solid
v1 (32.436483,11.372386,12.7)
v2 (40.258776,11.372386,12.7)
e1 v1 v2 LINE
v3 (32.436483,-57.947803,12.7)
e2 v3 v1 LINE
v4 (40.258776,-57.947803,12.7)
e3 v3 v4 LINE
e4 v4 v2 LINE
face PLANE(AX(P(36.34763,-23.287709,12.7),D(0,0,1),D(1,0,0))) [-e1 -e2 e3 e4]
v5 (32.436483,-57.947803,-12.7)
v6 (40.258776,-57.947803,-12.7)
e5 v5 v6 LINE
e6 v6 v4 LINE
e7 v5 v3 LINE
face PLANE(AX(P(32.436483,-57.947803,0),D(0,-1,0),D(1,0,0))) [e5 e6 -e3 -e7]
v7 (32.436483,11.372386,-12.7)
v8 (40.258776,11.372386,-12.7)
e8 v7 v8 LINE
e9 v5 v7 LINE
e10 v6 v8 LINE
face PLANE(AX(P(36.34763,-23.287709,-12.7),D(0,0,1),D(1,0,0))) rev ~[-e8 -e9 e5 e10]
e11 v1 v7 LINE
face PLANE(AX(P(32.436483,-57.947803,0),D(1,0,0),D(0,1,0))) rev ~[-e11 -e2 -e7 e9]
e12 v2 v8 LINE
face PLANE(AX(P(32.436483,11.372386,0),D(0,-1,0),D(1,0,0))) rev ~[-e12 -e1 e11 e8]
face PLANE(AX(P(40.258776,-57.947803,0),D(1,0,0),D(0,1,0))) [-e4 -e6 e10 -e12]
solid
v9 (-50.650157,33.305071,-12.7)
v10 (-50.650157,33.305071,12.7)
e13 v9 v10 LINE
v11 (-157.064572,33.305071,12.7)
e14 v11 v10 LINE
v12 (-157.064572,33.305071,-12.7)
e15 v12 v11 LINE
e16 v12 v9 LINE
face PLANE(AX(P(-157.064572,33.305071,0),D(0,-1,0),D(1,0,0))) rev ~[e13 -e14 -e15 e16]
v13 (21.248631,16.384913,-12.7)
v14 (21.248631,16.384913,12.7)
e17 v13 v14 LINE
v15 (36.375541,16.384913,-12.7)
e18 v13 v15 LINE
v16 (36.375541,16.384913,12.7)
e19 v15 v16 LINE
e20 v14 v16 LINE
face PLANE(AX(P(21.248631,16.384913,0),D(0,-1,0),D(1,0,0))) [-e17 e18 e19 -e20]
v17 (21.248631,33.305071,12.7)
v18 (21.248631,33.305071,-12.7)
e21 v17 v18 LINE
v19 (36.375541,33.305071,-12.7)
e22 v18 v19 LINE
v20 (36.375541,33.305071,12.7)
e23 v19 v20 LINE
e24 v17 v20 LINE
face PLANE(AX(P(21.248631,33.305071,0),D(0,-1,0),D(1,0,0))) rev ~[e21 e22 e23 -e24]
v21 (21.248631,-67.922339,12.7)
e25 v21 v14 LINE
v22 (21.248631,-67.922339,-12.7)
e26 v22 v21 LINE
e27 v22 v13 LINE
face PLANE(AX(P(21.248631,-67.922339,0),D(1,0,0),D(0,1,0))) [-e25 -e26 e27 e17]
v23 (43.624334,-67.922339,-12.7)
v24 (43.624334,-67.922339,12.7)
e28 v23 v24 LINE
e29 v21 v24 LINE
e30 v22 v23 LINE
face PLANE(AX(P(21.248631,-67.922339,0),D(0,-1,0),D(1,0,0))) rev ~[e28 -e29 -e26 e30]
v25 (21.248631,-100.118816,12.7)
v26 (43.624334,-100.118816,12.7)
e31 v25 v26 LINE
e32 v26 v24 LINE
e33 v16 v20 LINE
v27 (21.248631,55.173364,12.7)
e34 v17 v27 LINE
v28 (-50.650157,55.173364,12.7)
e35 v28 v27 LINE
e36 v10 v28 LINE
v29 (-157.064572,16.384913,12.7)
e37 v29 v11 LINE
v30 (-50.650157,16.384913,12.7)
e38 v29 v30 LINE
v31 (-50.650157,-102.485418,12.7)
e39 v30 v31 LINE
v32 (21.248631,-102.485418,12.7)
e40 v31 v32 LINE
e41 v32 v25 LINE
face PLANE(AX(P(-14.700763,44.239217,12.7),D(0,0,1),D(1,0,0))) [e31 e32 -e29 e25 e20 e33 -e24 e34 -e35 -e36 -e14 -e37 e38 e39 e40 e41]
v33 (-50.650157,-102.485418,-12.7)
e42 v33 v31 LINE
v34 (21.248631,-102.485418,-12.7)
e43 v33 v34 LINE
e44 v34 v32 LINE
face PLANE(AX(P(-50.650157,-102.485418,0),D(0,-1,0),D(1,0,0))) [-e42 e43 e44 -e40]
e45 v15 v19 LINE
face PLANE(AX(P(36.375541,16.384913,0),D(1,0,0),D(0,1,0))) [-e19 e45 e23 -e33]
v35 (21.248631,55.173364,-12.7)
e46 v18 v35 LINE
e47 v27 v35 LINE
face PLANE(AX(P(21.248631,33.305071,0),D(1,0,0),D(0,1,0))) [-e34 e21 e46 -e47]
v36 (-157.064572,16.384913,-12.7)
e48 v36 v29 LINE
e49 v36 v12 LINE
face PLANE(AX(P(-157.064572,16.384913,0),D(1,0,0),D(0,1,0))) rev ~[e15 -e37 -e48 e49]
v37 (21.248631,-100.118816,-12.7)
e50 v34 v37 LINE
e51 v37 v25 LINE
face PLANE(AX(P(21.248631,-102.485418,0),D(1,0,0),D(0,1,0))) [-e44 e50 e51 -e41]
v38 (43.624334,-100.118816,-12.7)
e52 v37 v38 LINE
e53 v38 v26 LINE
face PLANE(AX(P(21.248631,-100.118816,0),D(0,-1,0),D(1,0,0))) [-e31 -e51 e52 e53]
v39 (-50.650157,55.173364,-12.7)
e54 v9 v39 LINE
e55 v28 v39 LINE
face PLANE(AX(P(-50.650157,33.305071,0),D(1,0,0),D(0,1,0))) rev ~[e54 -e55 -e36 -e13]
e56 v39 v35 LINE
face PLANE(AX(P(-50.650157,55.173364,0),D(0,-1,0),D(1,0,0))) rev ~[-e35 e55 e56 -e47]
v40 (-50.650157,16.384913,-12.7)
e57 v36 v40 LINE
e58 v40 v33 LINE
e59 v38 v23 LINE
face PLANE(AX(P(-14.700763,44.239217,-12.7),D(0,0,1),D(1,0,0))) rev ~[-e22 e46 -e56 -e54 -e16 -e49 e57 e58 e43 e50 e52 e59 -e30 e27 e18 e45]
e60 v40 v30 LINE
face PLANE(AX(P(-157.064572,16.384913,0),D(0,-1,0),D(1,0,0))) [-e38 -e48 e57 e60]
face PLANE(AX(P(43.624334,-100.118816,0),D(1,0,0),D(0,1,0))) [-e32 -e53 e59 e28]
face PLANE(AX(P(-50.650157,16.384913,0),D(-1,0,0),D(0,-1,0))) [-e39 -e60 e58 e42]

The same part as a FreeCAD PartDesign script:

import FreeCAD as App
import Part
import Sketcher
from FreeCAD import Vector
Q = App.Units.Quantity


def add_polygon(sketch, points):
    """Adds a closed chain of lines whose ends are joined by coincident constraints."""
    first, n = sketch.GeometryCount, len(points)
    for a, b in zip(points, points[1:] + points[:1]):
        sketch.addGeometry(Part.LineSegment(App.Vector(*a, 0), App.Vector(*b, 0)), False)
    for i in range(n):
        sketch.addConstraint(Sketcher.Constraint("Coincident", first + i, 2, first + (i + 1) % n, 1))

doc = App.newDocument("Part")
body = doc.addObject("PartDesign::Body", "Body")

# Sketch on XY plane
sketch1 = body.newObject("Sketcher::SketchObject", "Sketch")
sketch1.AttachmentSupport = (doc.getObject("XY_Plane"), [""])
sketch1.MapMode = "FlatFace"
add_polygon(sketch1, [(32.436483, 11.372386), (32.436483, -57.947803), (40.258776, -57.947803), (40.258776, 11.372386)])  # lines 0-3
sketch1.addConstraint([
    Sketcher.Constraint("Vertical", 0),
    Sketcher.Constraint("Horizontal", 1),
    Sketcher.Constraint("Vertical", 2),
    Sketcher.Constraint("Horizontal", 3),
    Sketcher.Constraint("DistanceY", 0, 2, 0, 1, Q("69.320189 mm")),
    Sketcher.Constraint("DistanceX", 1, 1, 1, 2, Q("7.822294 mm")),
    Sketcher.Constraint("DistanceX", -1, 1, 0, 2, Q("32.436483 mm")),
    Sketcher.Constraint("DistanceY", 0, 2, -1, 1, Q("57.947803 mm")),
])
pad1 = body.newObject("PartDesign::Pad", "Pad")
pad1.Profile = sketch1
pad1.Length = Q("1 in")
pad1.Midplane = True
body2 = doc.addObject("PartDesign::Body", "Body001")

# Sketch on XY plane
sketch2 = body2.newObject("Sketcher::SketchObject", "Sketch001")
sketch2.AttachmentSupport = (doc.getObject("XY_Plane001"), [""])
sketch2.MapMode = "FlatFace"
add_polygon(sketch2, [(-50.650157, 55.173364), (-50.650157, 33.305071), (-157.064572, 33.305071), (-157.064572, 16.384913), (-50.650157, 16.384913), (-50.650157, -102.485418), (21.248631, -102.485418), (21.248631, -100.118816), (43.624334, -100.118816), (43.624334, -67.922339), (21.248631, -67.922339), (21.248631, 16.384913), (36.375541, 16.384913), (36.375541, 33.305071), (21.248631, 33.305071), (21.248631, 55.173364)])  # lines 0-15
sketch2.addConstraint([
    Sketcher.Constraint("Vertical", 0),
    Sketcher.Constraint("Horizontal", 1),
    Sketcher.Constraint("Vertical", 2),
    Sketcher.Constraint("Horizontal", 3),
    Sketcher.Constraint("Vertical", 4),
    Sketcher.Constraint("Horizontal", 5),
    Sketcher.Constraint("Vertical", 6),
    Sketcher.Constraint("Horizontal", 7),
    Sketcher.Constraint("Vertical", 8),
    Sketcher.Constraint("Horizontal", 9),
    Sketcher.Constraint("Vertical", 10),
    Sketcher.Constraint("Horizontal", 11),
    Sketcher.Constraint("Vertical", 12),
    Sketcher.Constraint("Horizontal", 13),
    Sketcher.Constraint("Vertical", 14),
    Sketcher.Constraint("Horizontal", 15),
    Sketcher.Constraint("Horizontal", 3, 2, 10, 2),
    Sketcher.Constraint("Horizontal", 1, 2, 12, 2),
    Sketcher.Constraint("Vertical", 0, 2, 3, 2),
    Sketcher.Constraint("Vertical", 6, 2, 9, 2),
    Sketcher.Constraint("Vertical", 10, 2, 13, 2),
    Sketcher.Constraint("DistanceX", 5, 1, 5, 2, Q("71.898788 mm")),
    Sketcher.Constraint("DistanceX", 11, 1, 11, 2, Q("15.12691 mm")),
    Sketcher.Constraint("DistanceY", 2, 2, 2, 1, Q("16.920159 mm")),
    Sketcher.Constraint("DistanceY", 4, 2, 4, 1, Q("118.870331 mm")),
    Sketcher.Constraint("DistanceY", 10, 1, 10, 2, Q("84.307251 mm")),
    Sketcher.Constraint("DistanceX", 1, 2, 1, 1, Q("106.414415 mm")),
    Sketcher.Constraint("DistanceX", 7, 1, 7, 2, Q("22.375703 mm")),
    Sketcher.Constraint("DistanceY", 0, 2, 0, 1, Q("21.868292 mm")),
    Sketcher.Constraint("DistanceY", 6, 1, 6, 2, Q("2.366602 mm")),
    Sketcher.Constraint("DistanceY", -1, 1, 0, 2, Q("33.305071 mm")),
    Sketcher.Constraint("DistanceX", 1, 2, -1, 1, Q("157.064572 mm")),
])
pad2 = body2.newObject("PartDesign::Pad", "Pad001")
pad2.Profile = sketch2
pad2.Length = Q("1 in")
pad2.Midplane = True

doc.recompute()
